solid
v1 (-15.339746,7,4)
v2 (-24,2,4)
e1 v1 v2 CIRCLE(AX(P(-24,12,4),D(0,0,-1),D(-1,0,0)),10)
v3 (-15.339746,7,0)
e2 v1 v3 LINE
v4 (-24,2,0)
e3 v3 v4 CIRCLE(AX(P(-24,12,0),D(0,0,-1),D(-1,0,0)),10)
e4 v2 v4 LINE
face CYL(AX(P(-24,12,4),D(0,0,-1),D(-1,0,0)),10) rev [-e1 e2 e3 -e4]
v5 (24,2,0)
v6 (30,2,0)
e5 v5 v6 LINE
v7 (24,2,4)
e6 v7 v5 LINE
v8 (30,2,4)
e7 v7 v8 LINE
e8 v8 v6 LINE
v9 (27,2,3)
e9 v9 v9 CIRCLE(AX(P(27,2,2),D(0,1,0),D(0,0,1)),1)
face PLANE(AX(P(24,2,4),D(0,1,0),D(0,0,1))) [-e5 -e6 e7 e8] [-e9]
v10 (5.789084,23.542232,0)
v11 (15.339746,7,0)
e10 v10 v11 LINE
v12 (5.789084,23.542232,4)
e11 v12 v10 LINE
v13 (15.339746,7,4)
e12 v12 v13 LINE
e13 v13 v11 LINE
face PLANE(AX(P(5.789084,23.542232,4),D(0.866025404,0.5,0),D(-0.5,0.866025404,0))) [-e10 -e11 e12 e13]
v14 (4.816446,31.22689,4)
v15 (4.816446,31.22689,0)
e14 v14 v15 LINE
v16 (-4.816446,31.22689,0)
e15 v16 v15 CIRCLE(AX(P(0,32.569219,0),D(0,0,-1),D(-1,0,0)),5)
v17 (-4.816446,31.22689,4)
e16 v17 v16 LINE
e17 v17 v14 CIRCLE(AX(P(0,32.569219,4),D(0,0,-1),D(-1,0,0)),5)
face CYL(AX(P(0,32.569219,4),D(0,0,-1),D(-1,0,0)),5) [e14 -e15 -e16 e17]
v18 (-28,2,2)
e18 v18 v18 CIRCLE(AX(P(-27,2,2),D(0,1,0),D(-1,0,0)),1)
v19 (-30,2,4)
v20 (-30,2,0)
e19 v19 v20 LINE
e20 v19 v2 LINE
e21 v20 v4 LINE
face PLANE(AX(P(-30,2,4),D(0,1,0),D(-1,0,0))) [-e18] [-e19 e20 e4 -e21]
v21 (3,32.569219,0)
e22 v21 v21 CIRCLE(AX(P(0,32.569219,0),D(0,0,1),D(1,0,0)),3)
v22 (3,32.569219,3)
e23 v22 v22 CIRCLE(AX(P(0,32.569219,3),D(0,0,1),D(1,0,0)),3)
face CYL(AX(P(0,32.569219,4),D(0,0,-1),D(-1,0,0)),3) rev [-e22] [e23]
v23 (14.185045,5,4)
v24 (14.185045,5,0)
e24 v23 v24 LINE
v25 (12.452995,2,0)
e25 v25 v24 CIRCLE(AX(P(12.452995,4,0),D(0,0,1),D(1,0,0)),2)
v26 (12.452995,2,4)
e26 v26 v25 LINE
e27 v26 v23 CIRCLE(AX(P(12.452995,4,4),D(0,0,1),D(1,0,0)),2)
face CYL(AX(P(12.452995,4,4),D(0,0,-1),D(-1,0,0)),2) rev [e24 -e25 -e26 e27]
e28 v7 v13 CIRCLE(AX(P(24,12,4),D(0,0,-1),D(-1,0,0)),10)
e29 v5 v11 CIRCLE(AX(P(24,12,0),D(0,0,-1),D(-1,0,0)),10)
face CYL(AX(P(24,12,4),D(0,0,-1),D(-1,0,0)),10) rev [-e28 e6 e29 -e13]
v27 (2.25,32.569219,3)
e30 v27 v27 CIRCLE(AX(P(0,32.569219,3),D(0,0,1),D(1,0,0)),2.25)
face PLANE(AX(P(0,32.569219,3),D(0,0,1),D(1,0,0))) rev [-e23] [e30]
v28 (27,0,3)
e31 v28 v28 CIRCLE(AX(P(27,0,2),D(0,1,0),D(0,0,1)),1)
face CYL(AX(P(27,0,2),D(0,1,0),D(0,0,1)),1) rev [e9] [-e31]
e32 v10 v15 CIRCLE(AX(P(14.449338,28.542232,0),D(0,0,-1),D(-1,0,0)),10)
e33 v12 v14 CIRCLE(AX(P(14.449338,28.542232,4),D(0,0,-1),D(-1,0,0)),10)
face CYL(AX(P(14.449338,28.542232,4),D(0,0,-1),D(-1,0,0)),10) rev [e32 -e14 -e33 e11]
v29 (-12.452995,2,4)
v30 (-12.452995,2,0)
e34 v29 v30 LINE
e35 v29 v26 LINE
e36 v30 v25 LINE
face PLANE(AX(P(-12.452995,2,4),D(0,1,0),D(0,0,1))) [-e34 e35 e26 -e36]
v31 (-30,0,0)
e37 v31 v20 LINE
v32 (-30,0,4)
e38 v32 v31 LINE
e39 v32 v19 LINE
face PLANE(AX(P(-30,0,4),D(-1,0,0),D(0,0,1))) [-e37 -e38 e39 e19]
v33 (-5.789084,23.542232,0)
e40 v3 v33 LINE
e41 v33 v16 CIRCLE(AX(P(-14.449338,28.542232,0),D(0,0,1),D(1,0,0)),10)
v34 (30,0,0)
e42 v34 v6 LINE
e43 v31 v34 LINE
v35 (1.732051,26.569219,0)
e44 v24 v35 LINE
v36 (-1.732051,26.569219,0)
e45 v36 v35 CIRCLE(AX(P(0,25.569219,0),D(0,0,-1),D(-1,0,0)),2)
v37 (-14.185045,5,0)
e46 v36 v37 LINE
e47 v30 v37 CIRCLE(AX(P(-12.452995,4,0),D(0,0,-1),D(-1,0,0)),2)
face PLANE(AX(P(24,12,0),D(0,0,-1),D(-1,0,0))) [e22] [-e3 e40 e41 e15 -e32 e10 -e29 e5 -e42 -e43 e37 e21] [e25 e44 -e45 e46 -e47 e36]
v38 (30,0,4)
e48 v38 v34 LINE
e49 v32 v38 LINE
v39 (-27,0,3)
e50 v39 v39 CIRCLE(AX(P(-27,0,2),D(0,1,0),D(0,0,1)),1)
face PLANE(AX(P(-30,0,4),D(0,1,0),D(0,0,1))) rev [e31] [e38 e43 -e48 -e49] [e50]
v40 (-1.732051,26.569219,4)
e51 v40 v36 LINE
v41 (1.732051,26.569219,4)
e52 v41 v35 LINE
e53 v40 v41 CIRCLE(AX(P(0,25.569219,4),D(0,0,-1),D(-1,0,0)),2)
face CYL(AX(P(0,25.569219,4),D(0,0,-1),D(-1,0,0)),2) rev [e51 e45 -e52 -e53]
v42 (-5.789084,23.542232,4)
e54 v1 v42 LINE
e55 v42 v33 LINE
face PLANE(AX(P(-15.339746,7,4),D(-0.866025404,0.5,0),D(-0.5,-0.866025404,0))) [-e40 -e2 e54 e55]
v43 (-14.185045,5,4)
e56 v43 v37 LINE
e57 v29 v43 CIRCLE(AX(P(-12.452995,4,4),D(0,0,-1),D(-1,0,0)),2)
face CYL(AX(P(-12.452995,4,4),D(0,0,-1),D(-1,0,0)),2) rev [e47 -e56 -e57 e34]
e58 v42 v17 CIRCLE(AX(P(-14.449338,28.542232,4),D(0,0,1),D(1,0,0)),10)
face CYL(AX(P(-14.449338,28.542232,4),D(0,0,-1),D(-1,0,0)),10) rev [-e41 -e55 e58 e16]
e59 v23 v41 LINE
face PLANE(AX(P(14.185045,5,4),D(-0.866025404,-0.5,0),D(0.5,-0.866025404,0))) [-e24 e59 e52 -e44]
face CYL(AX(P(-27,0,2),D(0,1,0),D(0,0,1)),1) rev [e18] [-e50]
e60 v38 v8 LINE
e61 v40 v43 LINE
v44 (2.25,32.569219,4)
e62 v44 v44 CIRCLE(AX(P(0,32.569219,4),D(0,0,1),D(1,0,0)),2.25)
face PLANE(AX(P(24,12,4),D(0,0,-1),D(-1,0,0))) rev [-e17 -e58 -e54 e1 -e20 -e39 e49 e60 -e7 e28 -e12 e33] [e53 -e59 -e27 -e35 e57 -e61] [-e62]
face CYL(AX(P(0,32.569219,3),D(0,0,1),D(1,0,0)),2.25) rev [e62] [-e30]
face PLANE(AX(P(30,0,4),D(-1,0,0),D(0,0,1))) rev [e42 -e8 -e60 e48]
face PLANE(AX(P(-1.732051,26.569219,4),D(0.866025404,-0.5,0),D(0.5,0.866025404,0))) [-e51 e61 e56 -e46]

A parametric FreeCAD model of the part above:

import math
import FreeCAD as App
import Part
import Sketcher

V = App.Vector
Q = App.Units.Quantity

doc = App.newDocument("Part")
body = doc.addObject("PartDesign::Body", "Body")

# Sketch on XY plane
sketch1 = body.newObject("Sketcher::SketchObject", "Sketch")
sketch1.AttachmentSupport = (doc.getObject("XY_Plane"), [""])
sketch1.MapMode = "FlatFace"
sketch1.addGeometry([
    Part.LineSegment(V(-30, 0, 0), V(30, 0, 0)),  # 0
    Part.LineSegment(V(30, 0, 0), V(30, 2, 0)),  # 1
    Part.LineSegment(V(30, 2, 0), V(24, 2, 0)),  # 2
    Part.ArcOfCircle(Part.Circle(V(24, 12, 0), V(0, 0, 1), 10), math.radians(-150), math.radians(-90)),  # 3
    Part.LineSegment(V(15.3, 7, 0), V(5.8, 23.5, 0)),  # 4
    Part.ArcOfCircle(Part.Circle(V(14.4, 28.5, 0), V(0, 0, 1), 10), math.radians(164), math.radians(210)),  # 5
    Part.ArcOfCircle(Part.Circle(V(0, 32.6, 0), V(0, 0, 1), 5), math.radians(-16), math.radians(196)),  # 6
    Part.ArcOfCircle(Part.Circle(V(-14.4, 28.5, 0), V(0, 0, 1), 10), math.radians(-30), math.radians(16)),  # 7
    Part.LineSegment(V(-5.8, 23.5, 0), V(-15.3, 7, 0)),  # 8
    Part.ArcOfCircle(Part.Circle(V(-24, 12, 0), V(0, 0, 1), 10), math.radians(-90), math.radians(-30)),  # 9
    Part.LineSegment(V(-24, 2, 0), V(-30, 2, 0)),  # 10
    Part.LineSegment(V(-30, 2, 0), V(-30, 0, 0)),  # 11
    Part.LineSegment(V(12.5, 2, 0), V(-12.5, 2, 0)),  # 12
    Part.ArcOfCircle(Part.Circle(V(-12.5, 4, 0), V(0, 0, 1), 2), math.radians(150), math.radians(270)),  # 13
    Part.LineSegment(V(-14.2, 5, 0), V(-1.7, 26.6, 0)),  # 14
    Part.ArcOfCircle(Part.Circle(V(0, 25.6, 0), V(0, 0, 1), 2), math.radians(30), math.radians(150)),  # 15
    Part.LineSegment(V(1.7, 26.6, 0), V(14.2, 5, 0)),  # 16
    Part.ArcOfCircle(Part.Circle(V(12.5, 4, 0), V(0, 0, 1), 2), math.radians(-90), math.radians(30)),  # 17
    Part.Circle(V(0, 32.6, 0), V(0, 0, 1), 3),  # 18
], False)
sketch1.addConstraint([
    Sketcher.Constraint("Coincident", 0, 2, 1, 1),
    Sketcher.Constraint("Coincident", 1, 2, 2, 1),
    Sketcher.Constraint("Tangent", 2, 2, 3, 2),
    Sketcher.Constraint("Tangent", 3, 1, 4, 1),
    Sketcher.Constraint("Tangent", 4, 2, 5, 2),
    Sketcher.Constraint("Tangent", 5, 1, 6, 1),
    Sketcher.Constraint("Tangent", 6, 2, 7, 2),
    Sketcher.Constraint("Tangent", 7, 1, 8, 1),
    Sketcher.Constraint("Tangent", 8, 2, 9, 2),
    Sketcher.Constraint("Tangent", 9, 1, 10, 1),
    Sketcher.Constraint("Coincident", 10, 2, 11, 1),
    Sketcher.Constraint("Coincident", 11, 2, 0, 1),
    Sketcher.Constraint("Tangent", 12, 2, 13, 2),
    Sketcher.Constraint("Tangent", 13, 1, 14, 1),
    Sketcher.Constraint("Tangent", 14, 2, 15, 2),
    Sketcher.Constraint("Tangent", 15, 1, 16, 1),
    Sketcher.Constraint("Tangent", 16, 2, 17, 2),
    Sketcher.Constraint("Tangent", 17, 1, 12, 1),
    Sketcher.Constraint("Horizontal", 0),
    Sketcher.Constraint("Vertical", 1),
    Sketcher.Constraint("Horizontal", 2),
    Sketcher.Constraint("Horizontal", 10),
    Sketcher.Constraint("Vertical", 11),
    Sketcher.Constraint("Horizontal", 12),
    Sketcher.Constraint("Coincident", 18, 3, 6, 3),
    Sketcher.Constraint("Equal", 3, 5),
    Sketcher.Constraint("Equal", 5, 7),
    Sketcher.Constraint("Equal", 7, 9),
    Sketcher.Constraint("Equal", 13, 15),
    Sketcher.Constraint("Equal", 15, 17),
    Sketcher.Constraint("Symmetric", 0, 2, 11, 2, -1, 1),
    Sketcher.Constraint("Symmetric", 5, 3, 7, 3, -2),
    Sketcher.Constraint("Symmetric", 3, 3, 9, 3, -2),
    Sketcher.Constraint("Symmetric", 14, 2, 15, 1, -2),
    Sketcher.Constraint("Parallel", 8, 14),
    Sketcher.Constraint("Horizontal", 10, 2, 12, 2),
    Sketcher.Constraint("Diameter", 18, 6.0),
    Sketcher.Constraint("Radius", 3, 10.0),
    Sketcher.Constraint("Radius", 6, 5.0),
    Sketcher.Constraint("Radius", 13, 2.0),
    Sketcher.Constraint("DistanceX", 0, 1, 0, 2, 60.0),
    Sketcher.Constraint("DistanceX", 2, 2, 2, 1, 6.0),
    Sketcher.Constraint("DistanceY", 1, 1, 1, 2, 2.0),
    Sketcher.Constraint("Angle", 4, Q("120 deg")),
    Sketcher.Constraint("DistanceY", 15, 3, 6, 3, 7.0),
    Sketcher.Constraint("DistanceX", 12, 2, 12, 1, 24.905989),
])
pad1 = body.newObject("PartDesign::Pad", "Pad")
pad1.Profile = sketch1
pad1.Length = 4

# Sketch on XY plane
sketch2 = body.newObject("Sketcher::SketchObject", "Sketch001")
sketch2.AttachmentSupport = (doc.getObject("XY_Plane"), [""])
sketch2.MapMode = "FlatFace"
sketch2.AttachmentOffset = App.Placement(V(0, 0, 4), App.Rotation())
sketch2.addGeometry([
    Part.Circle(V(0, 32.6, 0), V(0, 0, 1), 5),
    Part.Circle(V(0, 32.6, 0), V(0, 0, 1), 2.2),
], False)
sketch2.addConstraint([
    Sketcher.Constraint("Coincident", 1, 3, 0, 3),
    Sketcher.Constraint("PointOnObject", 0, 3, -2),
    Sketcher.Constraint("Diameter", 0, 10.0),
    Sketcher.Constraint("Diameter", 1, 4.5),
    Sketcher.Constraint("DistanceY", -1, 1, 0, 3, 32.569219),
])
pad2 = body.newObject("PartDesign::Pad", "Pad001")
pad2.Profile = sketch2
pad2.Length = 1
pad2.Reversed = True

# Sketch on XZ plane
sketch3 = body.newObject("Sketcher::SketchObject", "Sketch002")
sketch3.AttachmentSupport = (doc.getObject("XZ_Plane"), [""])
sketch3.MapMode = "FlatFace"
sketch3.AttachmentOffset = App.Placement(V(0, 0, -2), App.Rotation())
sketch3.addGeometry([
    Part.Circle(V(27, 2, 0), V(0, 0, 1), 1),
    Part.Circle(V(-27, 2, 0), V(0, 0, 1), 1),
], False)
sketch3.addConstraint([
    Sketcher.Constraint("Equal", 0, 1),
    Sketcher.Constraint("Symmetric", 0, 3, 1, 3, -2),
    Sketcher.Constraint("Diameter", 0, 2.0),
    Sketcher.Constraint("DistanceX", -1, 1, 0, 3, 27.0),
    Sketcher.Constraint("DistanceY", -1, 1, 0, 3, 2.0),
])
pocket1 = body.newObject("PartDesign::Pocket", "Pocket")
pocket1.Profile = sketch3
pocket1.Type = "ThroughAll"
pocket1.Midplane = True

doc.recompute()
